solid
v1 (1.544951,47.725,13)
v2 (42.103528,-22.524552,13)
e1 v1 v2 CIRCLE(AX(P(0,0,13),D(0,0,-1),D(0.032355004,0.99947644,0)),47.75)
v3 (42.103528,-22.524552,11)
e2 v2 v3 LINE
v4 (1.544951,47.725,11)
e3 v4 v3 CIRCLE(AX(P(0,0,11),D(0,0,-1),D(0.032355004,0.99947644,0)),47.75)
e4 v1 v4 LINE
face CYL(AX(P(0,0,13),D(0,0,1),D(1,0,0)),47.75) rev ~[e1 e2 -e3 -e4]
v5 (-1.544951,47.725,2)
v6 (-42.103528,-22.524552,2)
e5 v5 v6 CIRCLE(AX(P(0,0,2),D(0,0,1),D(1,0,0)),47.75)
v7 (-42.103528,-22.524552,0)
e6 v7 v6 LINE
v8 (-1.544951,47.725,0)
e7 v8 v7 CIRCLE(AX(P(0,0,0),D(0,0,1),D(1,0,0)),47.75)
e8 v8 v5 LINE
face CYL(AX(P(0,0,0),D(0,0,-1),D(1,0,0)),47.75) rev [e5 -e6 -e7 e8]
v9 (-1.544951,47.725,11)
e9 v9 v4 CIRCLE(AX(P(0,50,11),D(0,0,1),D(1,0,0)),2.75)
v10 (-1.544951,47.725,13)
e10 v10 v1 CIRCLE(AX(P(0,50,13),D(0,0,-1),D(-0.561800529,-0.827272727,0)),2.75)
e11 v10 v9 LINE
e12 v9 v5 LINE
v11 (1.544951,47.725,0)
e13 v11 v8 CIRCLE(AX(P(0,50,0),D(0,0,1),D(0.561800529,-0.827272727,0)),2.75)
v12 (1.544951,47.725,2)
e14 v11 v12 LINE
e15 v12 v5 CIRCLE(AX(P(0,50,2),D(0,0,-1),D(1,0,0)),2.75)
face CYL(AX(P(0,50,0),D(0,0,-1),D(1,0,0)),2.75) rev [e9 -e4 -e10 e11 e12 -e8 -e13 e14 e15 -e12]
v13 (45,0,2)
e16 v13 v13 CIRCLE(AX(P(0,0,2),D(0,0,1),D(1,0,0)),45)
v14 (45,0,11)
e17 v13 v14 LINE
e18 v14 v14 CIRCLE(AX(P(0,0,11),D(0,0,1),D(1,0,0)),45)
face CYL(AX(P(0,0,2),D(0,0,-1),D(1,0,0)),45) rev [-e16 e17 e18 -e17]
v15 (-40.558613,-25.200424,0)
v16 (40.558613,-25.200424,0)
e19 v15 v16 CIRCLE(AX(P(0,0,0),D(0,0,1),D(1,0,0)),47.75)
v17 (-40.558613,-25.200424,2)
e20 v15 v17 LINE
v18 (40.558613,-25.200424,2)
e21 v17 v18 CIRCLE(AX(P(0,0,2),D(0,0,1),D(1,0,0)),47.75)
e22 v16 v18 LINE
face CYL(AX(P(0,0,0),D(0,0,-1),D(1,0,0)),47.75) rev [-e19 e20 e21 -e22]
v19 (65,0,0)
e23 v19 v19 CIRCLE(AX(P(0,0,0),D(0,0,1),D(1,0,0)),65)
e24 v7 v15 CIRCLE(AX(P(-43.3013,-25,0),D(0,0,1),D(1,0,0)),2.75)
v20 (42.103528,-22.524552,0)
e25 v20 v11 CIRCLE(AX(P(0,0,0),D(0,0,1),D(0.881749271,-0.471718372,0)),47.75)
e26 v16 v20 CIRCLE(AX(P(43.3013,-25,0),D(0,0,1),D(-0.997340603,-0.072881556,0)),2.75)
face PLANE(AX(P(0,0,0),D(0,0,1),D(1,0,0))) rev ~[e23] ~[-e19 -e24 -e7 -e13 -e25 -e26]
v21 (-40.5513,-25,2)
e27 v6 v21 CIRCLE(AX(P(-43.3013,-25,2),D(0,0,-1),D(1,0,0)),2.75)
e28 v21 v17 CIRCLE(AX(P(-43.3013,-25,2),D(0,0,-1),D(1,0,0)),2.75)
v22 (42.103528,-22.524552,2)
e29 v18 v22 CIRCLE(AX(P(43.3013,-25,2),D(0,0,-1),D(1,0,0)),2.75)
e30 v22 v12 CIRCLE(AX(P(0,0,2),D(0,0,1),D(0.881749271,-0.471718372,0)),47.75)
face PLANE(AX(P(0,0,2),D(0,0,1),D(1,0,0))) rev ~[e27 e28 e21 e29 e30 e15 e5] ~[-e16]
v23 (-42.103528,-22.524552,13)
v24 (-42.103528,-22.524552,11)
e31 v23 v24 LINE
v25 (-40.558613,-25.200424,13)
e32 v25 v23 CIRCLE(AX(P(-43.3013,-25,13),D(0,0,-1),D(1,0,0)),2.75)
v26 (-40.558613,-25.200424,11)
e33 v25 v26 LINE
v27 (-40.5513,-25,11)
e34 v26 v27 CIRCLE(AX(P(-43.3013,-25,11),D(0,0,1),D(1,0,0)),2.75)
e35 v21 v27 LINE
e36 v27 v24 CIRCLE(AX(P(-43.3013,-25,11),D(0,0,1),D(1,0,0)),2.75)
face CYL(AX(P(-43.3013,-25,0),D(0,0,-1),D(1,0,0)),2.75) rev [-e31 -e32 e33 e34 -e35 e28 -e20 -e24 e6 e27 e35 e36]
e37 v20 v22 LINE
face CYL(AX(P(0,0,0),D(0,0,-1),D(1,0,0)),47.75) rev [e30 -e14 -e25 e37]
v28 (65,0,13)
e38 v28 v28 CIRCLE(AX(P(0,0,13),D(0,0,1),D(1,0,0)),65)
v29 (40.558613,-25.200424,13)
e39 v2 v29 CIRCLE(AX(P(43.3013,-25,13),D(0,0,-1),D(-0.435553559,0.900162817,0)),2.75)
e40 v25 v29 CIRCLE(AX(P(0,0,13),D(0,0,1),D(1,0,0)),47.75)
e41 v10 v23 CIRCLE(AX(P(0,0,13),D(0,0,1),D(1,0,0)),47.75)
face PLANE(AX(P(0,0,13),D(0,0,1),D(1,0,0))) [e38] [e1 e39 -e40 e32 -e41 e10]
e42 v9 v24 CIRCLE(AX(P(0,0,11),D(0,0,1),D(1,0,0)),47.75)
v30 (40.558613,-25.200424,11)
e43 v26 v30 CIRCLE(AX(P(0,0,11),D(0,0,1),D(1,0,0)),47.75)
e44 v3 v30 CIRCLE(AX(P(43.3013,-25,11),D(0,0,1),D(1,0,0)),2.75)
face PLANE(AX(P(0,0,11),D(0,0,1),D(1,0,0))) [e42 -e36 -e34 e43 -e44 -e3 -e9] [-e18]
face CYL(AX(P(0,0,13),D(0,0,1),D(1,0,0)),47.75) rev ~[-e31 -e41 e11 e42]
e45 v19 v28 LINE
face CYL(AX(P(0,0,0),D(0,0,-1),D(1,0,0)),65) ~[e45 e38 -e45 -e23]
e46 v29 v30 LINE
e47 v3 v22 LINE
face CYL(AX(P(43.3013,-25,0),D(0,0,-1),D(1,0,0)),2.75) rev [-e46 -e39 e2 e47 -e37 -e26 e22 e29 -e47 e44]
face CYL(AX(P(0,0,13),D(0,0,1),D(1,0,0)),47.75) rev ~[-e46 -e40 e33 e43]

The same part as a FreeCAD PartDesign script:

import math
import FreeCAD as App
import Part
import Sketcher

V = App.Vector

doc = App.newDocument("Part")
body = doc.addObject("PartDesign::Body", "Body")

sketch1 = body.newObject("Sketcher::SketchObject", "Sketch")
sketch1.AttachmentSupport = (doc.getObject("XY_Plane"), [""])
sketch1.MapMode = "FlatFace"
sketch1.addGeometry([
    Part.Circle(V(0, 0, 0), V(0, 0, 1), 65),
    Part.ArcOfCircle(Part.Circle(V(0, 0, 0), V(0, 0, 1), 47.8), math.radians(-28), math.radians(88)),
    Part.ArcOfCircle(Part.Circle(V(43.3, -25, 0), V(0, 0, 1), 2.8), math.radians(-176), math.radians(116)),
    Part.ArcOfCircle(Part.Circle(V(0, 0, 0), V(0, 0, 1), 47.8), math.radians(-148), math.radians(-32)),
    Part.ArcOfCircle(Part.Circle(V(-43.3, -25, 0), V(0, 0, 1), 2.8), math.radians(64), math.radians(356)),
    Part.ArcOfCircle(Part.Circle(V(0, 0, 0), V(0, 0, 1), 47.8), math.radians(92), math.radians(208)),
    Part.ArcOfCircle(Part.Circle(V(0, 50, 0), V(0, 0, 1), 2.8), math.radians(-56), math.radians(236)),
], False)
sketch1.addConstraint([
    Sketcher.Constraint("Coincident", 1, 1, 2, 2),
    Sketcher.Constraint("Coincident", 2, 1, 3, 2),
    Sketcher.Constraint("Coincident", 3, 1, 4, 2),
    Sketcher.Constraint("Coincident", 4, 1, 5, 2),
    Sketcher.Constraint("Coincident", 5, 1, 6, 2),
    Sketcher.Constraint("Coincident", 6, 1, 1, 2),
    Sketcher.Constraint("Coincident", 0, 3, -1, 1),
    Sketcher.Constraint("Coincident", 1, 3, -1, 1),
    Sketcher.Constraint("Coincident", 3, 3, -1, 1),
    Sketcher.Constraint("Coincident", 5, 3, -1, 1),
    Sketcher.Constraint("Equal", 1, 3),
    Sketcher.Constraint("Equal", 2, 4),
    Sketcher.Constraint("Equal", 3, 5),
    Sketcher.Constraint("Equal", 4, 6),
    Sketcher.Constraint("Symmetric", 2, 3, 4, 3, -2),
    Sketcher.Constraint("PointOnObject", 6, 3, -2),
    Sketcher.Constraint("Diameter", 0, 130.0),
    Sketcher.Constraint("Radius", 1, 47.75),
    Sketcher.Constraint("Radius", 2, 2.75),
    Sketcher.Constraint("DistanceY", -1, 1, 6, 3, 50.0),
    Sketcher.Constraint("DistanceY", 2, 3, -1, 1, 25.0),
    Sketcher.Constraint("DistanceX", 2, 1, 1, 1, 1.545),
])
pad1 = body.newObject("PartDesign::Pad", "Pad")
pad1.Profile = sketch1
pad1.Length = 13

sketch2 = body.newObject("Sketcher::SketchObject", "Sketch001")
sketch2.AttachmentSupport = (doc.getObject("XY_Plane"), [""])
sketch2.MapMode = "FlatFace"
sketch2.AttachmentOffset = App.Placement(V(0, 0, 2), App.Rotation())
sketch2.addGeometry([
    Part.Circle(V(0, 0, 0), V(0, 0, 1), 48),
    Part.Circle(V(0, 0, 0), V(0, 0, 1), 45),
], False)
sketch2.addConstraint([
    Sketcher.Constraint("Coincident", 0, 3, -1, 1),
    Sketcher.Constraint("Coincident", 1, 3, -1, 1),
    Sketcher.Constraint("Diameter", 1, 90.0),
    Sketcher.Constraint("Diameter", 0, 95.5),
])
pad2 = body.newObject("PartDesign::Pad", "Pad001")
pad2.Profile = sketch2
pad2.Length = 11

sketch3 = body.newObject("Sketcher::SketchObject", "Sketch002")
sketch3.AttachmentSupport = (doc.getObject("XY_Plane"), [""])
sketch3.MapMode = "FlatFace"
sketch3.AttachmentOffset = App.Placement(V(0, 0, 8), App.Rotation())
sketch3.addGeometry([
    Part.Circle(V(0, 50, 0), V(0, 0, 1), 2.8),
    Part.Circle(V(43.3, -25, 0), V(0, 0, 1), 2.8),
    Part.Circle(V(-43.3, -25, 0), V(0, 0, 1), 2.8),
], False)
sketch3.addConstraint([
    Sketcher.Constraint("Equal", 0, 1),
    Sketcher.Constraint("Equal", 1, 2),
    Sketcher.Constraint("Symmetric", 1, 3, 2, 3, -2),
    Sketcher.Constraint("PointOnObject", 0, 3, -2),
    Sketcher.Constraint("Diameter", 0, 5.5),
    Sketcher.Constraint("DistanceY", -1, 1, 0, 3, 50.0),
    Sketcher.Constraint("DistanceY", 1, 3, -1, 1, 25.0),
    Sketcher.Constraint("DistanceX", -1, 1, 1, 3, 43.3013),
])
pad3 = body.newObject("PartDesign::Pad", "Pad002")
pad3.Profile = sketch3
pad3.Length = 5

sketch4 = body.newObject("Sketcher::SketchObject", "Sketch003")
sketch4.AttachmentSupport = (doc.getObject("XY_Plane"), [""])
sketch4.MapMode = "FlatFace"
sketch4.addGeometry([
    Part.ArcOfCircle(Part.Circle(V(0, 0, 0), V(0, 0, 1), 47.8), math.radians(88.15), math.radians(91.85)),
    Part.ArcOfCircle(Part.Circle(V(0, 50, 0), V(0, 0, 1), 2.8), math.radians(-56), math.radians(236)),
    Part.ArcOfCircle(Part.Circle(V(43.3, -25, 0), V(0, 0, 1), 2.8), math.radians(-176), math.radians(116)),
    Part.ArcOfCircle(Part.Circle(V(0, 0, 0), V(0, 0, 1), 47.8), math.radians(-31.85), math.radians(-28.15)),
    Part.ArcOfCircle(Part.Circle(V(0, 0, 0), V(0, 0, 1), 47.8), math.radians(-151.85), math.radians(-148.15)),
    Part.ArcOfCircle(Part.Circle(V(-43.3, -25, 0), V(0, 0, 1), 2.8), math.radians(64), math.radians(356)),
], False)
sketch4.addConstraint([
    Sketcher.Constraint("Coincident", 0, 1, 1, 1),
    Sketcher.Constraint("Coincident", 1, 2, 0, 2),
    Sketcher.Constraint("Coincident", 2, 1, 3, 1),
    Sketcher.Constraint("Coincident", 3, 2, 2, 2),
    Sketcher.Constraint("Coincident", 4, 1, 5, 1),
    Sketcher.Constraint("Coincident", 5, 2, 4, 2),
    Sketcher.Constraint("Coincident", 0, 3, -1, 1),
    Sketcher.Constraint("Coincident", 3, 3, -1, 1),
    Sketcher.Constraint("Coincident", 4, 3, -1, 1),
    Sketcher.Constraint("Equal", 1, 2),
    Sketcher.Constraint("Equal", 0, 3),
    Sketcher.Constraint("Equal", 3, 4),
    Sketcher.Constraint("Equal", 2, 5),
    Sketcher.Constraint("Symmetric", 2, 3, 5, 3, -2),
    Sketcher.Constraint("PointOnObject", 1, 3, -2),
    Sketcher.Constraint("Radius", 0, 47.75),
    Sketcher.Constraint("Radius", 1, 2.75),
    Sketcher.Constraint("DistanceY", -1, 1, 1, 3, 50.0),
    Sketcher.Constraint("DistanceY", 2, 3, -1, 1, 25.0),
    Sketcher.Constraint("DistanceX", 2, 1, 3, 2, 1.545),
])
pocket1 = body.newObject("PartDesign::Pocket", "Pocket")
pocket1.Profile = sketch4
pocket1.Length = 13
pocket1.Reversed = True

sketch5 = body.newObject("Sketcher::SketchObject", "Sketch004")
sketch5.AttachmentSupport = (doc.getObject("XY_Plane"), [""])
sketch5.MapMode = "FlatFace"
sketch5.addGeometry(Part.Circle(V(0, 0, 0), V(0, 0, 1), 45), False)
sketch5.addConstraint([
    Sketcher.Constraint("Coincident", 0, 3, -1, 1),
    Sketcher.Constraint("Diameter", 0, 90.0),
])
pocket2 = body.newObject("PartDesign::Pocket", "Pocket001")
pocket2.Profile = sketch5
pocket2.Length = 13
pocket2.Reversed = True

sketch6 = body.newObject("Sketcher::SketchObject", "Sketch005")
sketch6.AttachmentSupport = (doc.getObject("XY_Plane"), [""])
sketch6.MapMode = "FlatFace"
sketch6.addGeometry([
    Part.Circle(V(0, 50, 0), V(0, 0, 1), 2.8),
    Part.Circle(V(43.3, -25, 0), V(0, 0, 1), 2.8),
    Part.Circle(V(-43.3, -25, 0), V(0, 0, 1), 2.8),
], False)
sketch6.addConstraint([
    Sketcher.Constraint("Equal", 0, 1),
    Sketcher.Constraint("Equal", 1, 2),
    Sketcher.Constraint("Symmetric", 1, 3, 2, 3, -2),
    Sketcher.Constraint("PointOnObject", 0, 3, -2),
    Sketcher.Constraint("Diameter", 0, 5.5),
    Sketcher.Constraint("DistanceY", -1, 1, 0, 3, 50.0),
    Sketcher.Constraint("DistanceY", 1, 3, -1, 1, 25.0),
    Sketcher.Constraint("DistanceX", -1, 1, 1, 3, 43.3013),
])
pocket3 = body.newObject("PartDesign::Pocket", "Pocket002")
pocket3.Profile = sketch6
pocket3.Length = 13
pocket3.Reversed = True

sketch7 = body.newObject("Sketcher::SketchObject", "Sketch006")
sketch7.AttachmentSupport = (doc.getObject("XY_Plane"), [""])
sketch7.MapMode = "FlatFace"
sketch7.AttachmentOffset = App.Placement(V(0, 0, 13), App.Rotation())
sketch7.addGeometry([
    Part.ArcOfCircle(Part.Circle(V(0, 0, 0), V(0, 0, 1), 47.8), math.radians(-28), math.radians(88)),
    Part.ArcOfCircle(Part.Circle(V(0, 50, 0), V(0, 0, 1), 2.8), math.radians(-124), math.radians(-56)),
    Part.ArcOfCircle(Part.Circle(V(0, 0, 0), V(0, 0, 1), 47.8), math.radians(92), math.radians(208)),
    Part.ArcOfCircle(Part.Circle(V(-43.3, -25, 0), V(0, 0, 1), 2.8), math.radians(-4), math.radians(64)),
    Part.ArcOfCircle(Part.Circle(V(0, 0, 0), V(0, 0, 1), 47.8), math.radians(-148), math.radians(-32)),
    Part.ArcOfCircle(Part.Circle(V(43.3, -25, 0), V(0, 0, 1), 2.8), math.radians(116), math.radians(184)),
    Part.Circle(V(0, 0, 0), V(0, 0, 1), 45),
], False)
sketch7.addConstraint([
    Sketcher.Constraint("Coincident", 0, 2, 1, 2),
    Sketcher.Constraint("Coincident", 1, 1, 2, 1),
    Sketcher.Constraint("Coincident", 2, 2, 3, 2),
    Sketcher.Constraint("Coincident", 3, 1, 4, 1),
    Sketcher.Constraint("Coincident", 4, 2, 5, 2),
    Sketcher.Constraint("Coincident", 5, 1, 0, 1),
    Sketcher.Constraint("Coincident", 0, 3, -1, 1),
    Sketcher.Constraint("Coincident", 2, 3, -1, 1),
    Sketcher.Constraint("Coincident", 4, 3, -1, 1),
    Sketcher.Constraint("Coincident", 6, 3, -1, 1),
    Sketcher.Constraint("Equal", 0, 2),
    Sketcher.Constraint("Equal", 1, 3),
    Sketcher.Constraint("Equal", 2, 4),
    Sketcher.Constraint("Equal", 3, 5),
    Sketcher.Constraint("Symmetric", 3, 3, 5, 3, -2),
    Sketcher.Constraint("PointOnObject", 1, 3, -2),
    Sketcher.Constraint("Diameter", 6, 90.0),
    Sketcher.Constraint("Radius", 0, 47.75),
    Sketcher.Constraint("Radius", 1, 2.75),
    Sketcher.Constraint("DistanceY", -1, 1, 1, 3, 50.0),
    Sketcher.Constraint("DistanceY", 3, 3, -1, 1, 25.0),
    Sketcher.Constraint("DistanceX", 2, 2, 3, 1, 1.545),
])
pocket4 = body.newObject("PartDesign::Pocket", "Pocket003")
pocket4.Profile = sketch7
pocket4.Length = 2

doc.recompute()
